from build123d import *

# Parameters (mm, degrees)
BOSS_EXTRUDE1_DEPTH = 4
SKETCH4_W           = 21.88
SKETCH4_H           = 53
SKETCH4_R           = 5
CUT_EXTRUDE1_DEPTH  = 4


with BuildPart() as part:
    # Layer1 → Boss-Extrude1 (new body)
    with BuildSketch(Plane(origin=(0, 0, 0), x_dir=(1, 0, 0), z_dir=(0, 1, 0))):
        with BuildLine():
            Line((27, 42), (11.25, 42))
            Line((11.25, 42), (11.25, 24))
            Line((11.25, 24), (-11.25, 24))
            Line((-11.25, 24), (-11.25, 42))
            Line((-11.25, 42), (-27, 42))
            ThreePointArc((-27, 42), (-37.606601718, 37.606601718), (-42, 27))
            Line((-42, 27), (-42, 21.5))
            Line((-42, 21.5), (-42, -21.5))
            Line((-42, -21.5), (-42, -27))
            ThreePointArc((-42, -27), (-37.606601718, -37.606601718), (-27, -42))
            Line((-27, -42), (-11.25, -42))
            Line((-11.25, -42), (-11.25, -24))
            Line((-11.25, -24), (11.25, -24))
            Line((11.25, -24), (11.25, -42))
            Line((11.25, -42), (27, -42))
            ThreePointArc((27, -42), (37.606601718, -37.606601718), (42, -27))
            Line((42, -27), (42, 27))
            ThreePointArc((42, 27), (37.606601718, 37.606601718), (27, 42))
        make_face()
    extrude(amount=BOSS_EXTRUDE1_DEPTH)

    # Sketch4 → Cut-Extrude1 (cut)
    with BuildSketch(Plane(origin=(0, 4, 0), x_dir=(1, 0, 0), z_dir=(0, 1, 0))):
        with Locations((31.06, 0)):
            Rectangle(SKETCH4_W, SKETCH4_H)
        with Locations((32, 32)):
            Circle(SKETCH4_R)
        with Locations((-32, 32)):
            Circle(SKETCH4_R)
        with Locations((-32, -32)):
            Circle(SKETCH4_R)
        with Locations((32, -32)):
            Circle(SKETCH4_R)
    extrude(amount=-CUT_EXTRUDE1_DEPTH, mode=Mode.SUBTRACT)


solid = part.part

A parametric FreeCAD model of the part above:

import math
import FreeCAD as App
import Part
import Sketcher
from FreeCAD import Vector
Q = App.Units.Quantity

doc = App.newDocument("Part")
params = doc.addObject("Spreadsheet::Sheet", "Params")
for row, (alias, value) in enumerate([
    ("sketch1_radius", "15 mm"),
    ("sketch1_height", "18 mm"),
    ("sketch1_height2", "54 mm"),
    ("sketch1_width", "22.5 mm"),
    ("pad1_length", "4 mm"),
    ("sketch2_diameter", "10 mm"),
    ("sketch2_height", "53 mm"),
    ("sketch2_width", "21.88 mm"),
    ("pocket1_length", "4 mm"),
], start=1):
    params.set(f"A{row}", alias)
    params.set(f"B{row}", "=" + value)
    params.setAlias(f"B{row}", alias)

body = doc.addObject("PartDesign::Body", "Body")

sketch1 = body.newObject("Sketcher::SketchObject", "Sketch")
sketch1.AttachmentSupport = (doc.getObject("XZ_Plane"), [""])
sketch1.MapMode = "FlatFace"
sketch1.addGeometry([
    Part.LineSegment(Vector(27, -42, 0), Vector(11, -42, 0)),
    Part.LineSegment(Vector(11, -42, 0), Vector(11, -24, 0)),
    Part.LineSegment(Vector(11, -24, 0), Vector(-11, -24, 0)),
    Part.LineSegment(Vector(-11, -24, 0), Vector(-11, -42, 0)),
    Part.LineSegment(Vector(-11, -42, 0), Vector(-27, -42, 0)),
    Part.ArcOfCircle(Part.Circle(Vector(-27, -27, 0), Vector(0, 0, 1), 15), math.radians(180), math.radians(270)),
    Part.LineSegment(Vector(-42, -27, 0), Vector(-42, 27, 0)),
    Part.ArcOfCircle(Part.Circle(Vector(-27, 27, 0), Vector(0, 0, 1), 15), math.radians(90), math.radians(180)),
    Part.LineSegment(Vector(-27, 42, 0), Vector(-11, 42, 0)),
    Part.LineSegment(Vector(-11, 42, 0), Vector(-11, 24, 0)),
    Part.LineSegment(Vector(-11, 24, 0), Vector(11, 24, 0)),
    Part.LineSegment(Vector(11, 24, 0), Vector(11, 42, 0)),
    Part.LineSegment(Vector(11, 42, 0), Vector(27, 42, 0)),
    Part.ArcOfCircle(Part.Circle(Vector(27, 27, 0), Vector(0, 0, 1), 15), math.radians(0), math.radians(90)),
    Part.LineSegment(Vector(42, 27, 0), Vector(42, -27, 0)),
    Part.ArcOfCircle(Part.Circle(Vector(27, -27, 0), Vector(0, 0, 1), 15), math.radians(-90), math.radians(0)),
], False)
sketch1.addConstraint([
    Sketcher.Constraint("Coincident", 0, 2, 1, 1),
    Sketcher.Constraint("Coincident", 1, 2, 2, 1),
    Sketcher.Constraint("Coincident", 2, 2, 3, 1),
    Sketcher.Constraint("Coincident", 3, 2, 4, 1),
    Sketcher.Constraint("Tangent", 4, 2, 5, 2),
    Sketcher.Constraint("Tangent", 5, 1, 6, 1),
    Sketcher.Constraint("Tangent", 6, 2, 7, 2),
    Sketcher.Constraint("Tangent", 7, 1, 8, 1),
    Sketcher.Constraint("Coincident", 8, 2, 9, 1),
    Sketcher.Constraint("Coincident", 9, 2, 10, 1),
    Sketcher.Constraint("Coincident", 10, 2, 11, 1),
    Sketcher.Constraint("Coincident", 11, 2, 12, 1),
    Sketcher.Constraint("Tangent", 12, 2, 13, 2),
    Sketcher.Constraint("Tangent", 13, 1, 14, 1),
    Sketcher.Constraint("Tangent", 14, 2, 15, 2),
    Sketcher.Constraint("Tangent", 15, 1, 0, 1),
    Sketcher.Constraint("Horizontal", 0),
    Sketcher.Constraint("Vertical", 1),
    Sketcher.Constraint("Horizontal", 2),
    Sketcher.Constraint("Vertical", 3),
    Sketcher.Constraint("Horizontal", 4),
    Sketcher.Constraint("Vertical", 6),
    Sketcher.Constraint("Horizontal", 8),
    Sketcher.Constraint("Vertical", 9),
    Sketcher.Constraint("Horizontal", 10),
    Sketcher.Constraint("Vertical", 11),
    Sketcher.Constraint("Horizontal", 12),
    Sketcher.Constraint("Vertical", 14),
    Sketcher.Constraint("Equal", 5, 7),
    Sketcher.Constraint("Equal", 7, 13),
    Sketcher.Constraint("Equal", 13, 15),
    Sketcher.Constraint("Symmetric", 5, 3, 13, 3, -1, 1),
    Sketcher.Constraint("Symmetric", 0, 2, 8, 2, -1, 1),
    Sketcher.Constraint("Symmetric", 2, 2, 10, 2, -1, 1),
    Sketcher.Constraint("Symmetric", 0, 2, 3, 2, -2),
    Sketcher.Constraint("Radius", 5, Q("15 mm")),
    Sketcher.Constraint("DistanceY", 1, 1, 1, 2, Q("18 mm")),
    Sketcher.Constraint("DistanceY", 6, 1, 6, 2, Q("54 mm")),
    Sketcher.Constraint("DistanceX", 2, 2, 2, 1, Q("22.5 mm")),
    Sketcher.Constraint("DistanceX", 5, 3, -1, 1, Q("27 mm")),
])
sketch1.setExpression("Constraints[35]", "Params.sketch1_radius")
sketch1.setExpression("Constraints[36]", "Params.sketch1_height")
sketch1.setExpression("Constraints[37]", "Params.sketch1_height2")
sketch1.setExpression("Constraints[38]", "Params.sketch1_width")
pad1 = body.newObject("PartDesign::Pad", "Pad")
pad1.Profile = sketch1
pad1.setExpression("Length", "Params.pad1_length")
pad1.Reversed = True

sketch2 = body.newObject("Sketcher::SketchObject", "Sketch001")
sketch2.AttachmentSupport = (doc.getObject("XZ_Plane"), [""])
sketch2.MapMode = "FlatFace"
sketch2.AttachmentOffset = App.Placement(Vector(0, 0, -4), App.Rotation())
sketch2.addGeometry([
    Part.LineSegment(Vector(20, -26, 0), Vector(20, 26, 0)),
    Part.LineSegment(Vector(20, 26, 0), Vector(42, 26, 0)),
    Part.LineSegment(Vector(42, 26, 0), Vector(42, -26, 0)),
    Part.LineSegment(Vector(42, -26, 0), Vector(20, -26, 0)),
    Part.Circle(Vector(32, -32, 0), Vector(0, 0, 1), 5),
    Part.Circle(Vector(-32, -32, 0), Vector(0, 0, 1), 5),
    Part.Circle(Vector(-32, 32, 0), Vector(0, 0, 1), 5),
    Part.Circle(Vector(32, 32, 0), Vector(0, 0, 1), 5),
], False)
sketch2.addConstraint([
    Sketcher.Constraint("Coincident", 0, 2, 1, 1),
    Sketcher.Constraint("Coincident", 1, 2, 2, 1),
    Sketcher.Constraint("Coincident", 2, 2, 3, 1),
    Sketcher.Constraint("Coincident", 3, 2, 0, 1),
    Sketcher.Constraint("Vertical", 0),
    Sketcher.Constraint("Horizontal", 1),
    Sketcher.Constraint("Vertical", 2),
    Sketcher.Constraint("Horizontal", 3),
    Sketcher.Constraint("Equal", 4, 5),
    Sketcher.Constraint("Equal", 5, 6),
    Sketcher.Constraint("Equal", 6, 7),
    Sketcher.Constraint("Symmetric", 4, 3, 6, 3, -1, 1),
    Sketcher.Constraint("Symmetric", 5, 3, 7, 3, -1, 1),
    Sketcher.Constraint("Symmetric", 4, 3, 5, 3, -2),
    Sketcher.Constraint("Diameter", 4, Q("10 mm")),
    Sketcher.Constraint("DistanceY", 0, 1, 0, 2, Q("53 mm")),
    Sketcher.Constraint("DistanceX", -1, 1, 4, 3, Q("32 mm")),
    Sketcher.Constraint("DistanceY", 4, 3, -1, 1, Q("32 mm")),
    Sketcher.Constraint("DistanceX", -1, 1, 1, 2, Q("42 mm")),
    Sketcher.Constraint("DistanceX", 1, 1, 1, 2, Q("21.88 mm")),
    Sketcher.Constraint("DistanceY", -1, 1, 0, 2, Q("26.5 mm")),
])
sketch2.setExpression("Constraints[14]", "Params.sketch2_diameter")
sketch2.setExpression("Constraints[15]", "Params.sketch2_height")
sketch2.setExpression("Constraints[19]", "Params.sketch2_width")
pocket1 = body.newObject("PartDesign::Pocket", "Pocket")
pocket1.Profile = sketch2
pocket1.setExpression("Length", "Params.pocket1_length")
pocket1.Reversed = True

doc.recompute()
